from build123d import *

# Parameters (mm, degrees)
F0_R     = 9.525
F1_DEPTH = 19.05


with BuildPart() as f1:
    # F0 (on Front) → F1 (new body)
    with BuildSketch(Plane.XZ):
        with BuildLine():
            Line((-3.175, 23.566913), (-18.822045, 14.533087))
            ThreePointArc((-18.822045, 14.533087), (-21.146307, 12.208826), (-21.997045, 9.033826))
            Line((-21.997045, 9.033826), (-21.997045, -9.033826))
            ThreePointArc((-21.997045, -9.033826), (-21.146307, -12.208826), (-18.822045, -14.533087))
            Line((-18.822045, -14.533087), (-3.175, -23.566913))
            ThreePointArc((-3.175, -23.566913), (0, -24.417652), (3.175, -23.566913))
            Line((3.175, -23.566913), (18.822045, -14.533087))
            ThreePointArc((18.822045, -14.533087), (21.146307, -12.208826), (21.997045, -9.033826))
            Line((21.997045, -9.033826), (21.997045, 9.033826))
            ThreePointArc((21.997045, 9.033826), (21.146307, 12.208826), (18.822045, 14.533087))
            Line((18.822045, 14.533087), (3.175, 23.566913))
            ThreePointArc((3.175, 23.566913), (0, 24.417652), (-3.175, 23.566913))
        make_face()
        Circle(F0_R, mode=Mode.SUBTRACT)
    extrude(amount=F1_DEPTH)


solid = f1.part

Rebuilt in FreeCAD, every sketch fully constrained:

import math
import FreeCAD as App
import Part
import Sketcher
from FreeCAD import Vector
Q = App.Units.Quantity

doc = App.newDocument("Part")
params = doc.addObject("Spreadsheet::Sheet", "Params")
for row, (alias, value) in enumerate([
    ("sketch1_diameter", "0.75 in"),
    ("sketch1_radius", "0.2499998 in"),
    ("sketch1_radius2", "0.2499999 in"),
    ("pad1_length", "0.75 in"),
], start=1):
    params.set(f"A{row}", alias)
    params.set(f"B{row}", "=" + value)
    params.setAlias(f"B{row}", alias)

body = doc.addObject("PartDesign::Body", "Body")

# Sketch on XZ plane
sketch1 = doc.addObject("Sketcher::SketchObject", "Sketch")
body.addObject(sketch1)
sketch1.AttachmentSupport = (doc.XZ_Plane, [""])
sketch1.MapMode = "FlatFace"
sketch1.addGeometry(Part.LineSegment(Vector(-3, 24, 0), Vector(-19, 15, 0)), False)
sketch1.addGeometry(Part.ArcOfCircle(Part.Circle(Vector(-16, 9, 0), Vector(0, 0, 1), 6), math.radians(120), math.radians(180)), False)
sketch1.addGeometry(Part.LineSegment(Vector(-22, 9, 0), Vector(-22, -9, 0)), False)
sketch1.addGeometry(Part.ArcOfCircle(Part.Circle(Vector(-16, -9, 0), Vector(0, 0, 1), 6), math.radians(180), math.radians(240)), False)
sketch1.addGeometry(Part.LineSegment(Vector(-19, -15, 0), Vector(-3, -24, 0)), False)
sketch1.addGeometry(Part.ArcOfCircle(Part.Circle(Vector(0, -18, 0), Vector(0, 0, 1), 6), math.radians(-120), math.radians(-60)), False)
sketch1.addGeometry(Part.LineSegment(Vector(3, -24, 0), Vector(19, -15, 0)), False)
sketch1.addGeometry(Part.ArcOfCircle(Part.Circle(Vector(16, -9, 0), Vector(0, 0, 1), 6), math.radians(-60), math.radians(0)), False)
sketch1.addGeometry(Part.LineSegment(Vector(22, -9, 0), Vector(22, 9, 0)), False)
sketch1.addGeometry(Part.ArcOfCircle(Part.Circle(Vector(16, 9, 0), Vector(0, 0, 1), 6), math.radians(0), math.radians(60)), False)
sketch1.addGeometry(Part.LineSegment(Vector(19, 15, 0), Vector(3, 24, 0)), False)
sketch1.addGeometry(Part.ArcOfCircle(Part.Circle(Vector(0, 18, 0), Vector(0, 0, 1), 6), math.radians(60), math.radians(120)), False)
sketch1.addGeometry(Part.Circle(Vector(0, 0, 0), Vector(0, 0, 1), 10), False)
sketch1.addConstraint(Sketcher.Constraint("Tangent", 0, 2, 1, 1))
sketch1.addConstraint(Sketcher.Constraint("Tangent", 1, 2, 2, 1))
sketch1.addConstraint(Sketcher.Constraint("Tangent", 2, 2, 3, 1))
sketch1.addConstraint(Sketcher.Constraint("Tangent", 3, 2, 4, 1))
sketch1.addConstraint(Sketcher.Constraint("Tangent", 4, 2, 5, 1))
sketch1.addConstraint(Sketcher.Constraint("Tangent", 5, 2, 6, 1))
sketch1.addConstraint(Sketcher.Constraint("Tangent", 6, 2, 7, 1))
sketch1.addConstraint(Sketcher.Constraint("Tangent", 7, 2, 8, 1))
sketch1.addConstraint(Sketcher.Constraint("Tangent", 8, 2, 9, 1))
sketch1.addConstraint(Sketcher.Constraint("Tangent", 9, 2, 10, 1))
sketch1.addConstraint(Sketcher.Constraint("Tangent", 10, 2, 11, 1))
sketch1.addConstraint(Sketcher.Constraint("Tangent", 11, 2, 0, 1))
sketch1.addConstraint(Sketcher.Constraint("Vertical", 2))
sketch1.addConstraint(Sketcher.Constraint("Vertical", 8))
sketch1.addConstraint(Sketcher.Constraint("Coincident", 12, 3, -1, 1))
sketch1.addConstraint(Sketcher.Constraint("Equal", 1, 3))
sketch1.addConstraint(Sketcher.Constraint("Equal", 3, 7))
sketch1.addConstraint(Sketcher.Constraint("Equal", 7, 9))
sketch1.addConstraint(Sketcher.Constraint("Equal", 5, 11))
sketch1.addConstraint(Sketcher.Constraint("Symmetric", 1, 3, 7, 3, -1, 1))
sketch1.addConstraint(Sketcher.Constraint("Symmetric", 5, 3, 11, 3, -1, 1))
sketch1.addConstraint(Sketcher.Constraint("Symmetric", 4, 2, 5, 2, -2))
sketch1.addConstraint(Sketcher.Constraint("Parallel", 4, 10))
sketch1.addConstraint(Sketcher.Constraint("Diameter", 12, Q("0.75 in")))
sketch1.addConstraint(Sketcher.Constraint("Radius", 1, Q("0.2499998 in")))
sketch1.addConstraint(Sketcher.Constraint("Radius", 5, Q("0.2499999 in")))
sketch1.addConstraint(Sketcher.Constraint("Angle", 0, Q("-149.999999 deg")))
sketch1.addConstraint(Sketcher.Constraint("DistanceY", 2, 2, 2, 1, 18.067652))
sketch1.addConstraint(Sketcher.Constraint("DistanceX", 3, 3, 7, 3, 31.2941))
sketch1.setExpression("Constraints[23]", "Params.sketch1_diameter")
sketch1.setExpression("Constraints[24]", "Params.sketch1_radius")
sketch1.setExpression("Constraints[25]", "Params.sketch1_radius2")
pad1 = doc.addObject("PartDesign::Pad", "Pad")
body.addObject(pad1)
pad1.Profile = sketch1
pad1.setExpression("Length", "Params.pad1_length")

doc.recompute()
